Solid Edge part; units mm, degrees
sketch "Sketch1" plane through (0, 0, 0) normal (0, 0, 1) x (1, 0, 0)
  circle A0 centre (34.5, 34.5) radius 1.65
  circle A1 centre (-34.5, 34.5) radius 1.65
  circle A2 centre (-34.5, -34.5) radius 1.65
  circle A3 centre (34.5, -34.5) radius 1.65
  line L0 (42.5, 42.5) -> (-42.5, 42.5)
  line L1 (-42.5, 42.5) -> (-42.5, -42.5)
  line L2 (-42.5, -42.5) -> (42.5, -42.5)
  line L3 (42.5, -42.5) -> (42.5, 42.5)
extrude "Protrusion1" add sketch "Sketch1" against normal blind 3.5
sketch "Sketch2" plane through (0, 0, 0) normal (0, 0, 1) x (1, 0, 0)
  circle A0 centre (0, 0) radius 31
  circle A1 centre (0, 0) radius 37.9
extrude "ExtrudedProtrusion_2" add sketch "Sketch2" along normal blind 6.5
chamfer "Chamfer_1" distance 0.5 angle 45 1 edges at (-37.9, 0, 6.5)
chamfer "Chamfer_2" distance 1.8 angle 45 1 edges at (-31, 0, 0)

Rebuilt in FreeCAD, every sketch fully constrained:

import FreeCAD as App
import Part
import Sketcher
from FreeCAD import Vector
Q = App.Units.Quantity


def edges_at(feature, points):
    """Names of the edges that pass closest to the given points."""
    edges = feature.Shape.Edges
    near = lambda p: min(range(len(edges)), key=lambda i: edges[i].distToShape(Part.Vertex(*p))[0])
    return sorted({f"Edge{near(p) + 1}" for p in points})

doc = App.newDocument("Part")
body = doc.addObject("PartDesign::Body", "Body")

sketch1 = doc.addObject("Sketcher::SketchObject", "Sketch")
body.addObject(sketch1)
sketch1.AttachmentSupport = (doc.XY_Plane, [""])
sketch1.MapMode = "FlatFace"
sketch1.addGeometry([
    Part.LineSegment(Vector(42.5, -42.5, 0), Vector(42.5, 42.5, 0)),
    Part.LineSegment(Vector(42.5, 42.5, 0), Vector(-42.5, 42.5, 0)),
    Part.LineSegment(Vector(-42.5, 42.5, 0), Vector(-42.5, -42.5, 0)),
    Part.LineSegment(Vector(-42.5, -42.5, 0), Vector(42.5, -42.5, 0)),
    Part.Circle(Vector(-34.5, -34.5, 0), Vector(0, 0, 1), 1.6),
    Part.Circle(Vector(34.5, -34.5, 0), Vector(0, 0, 1), 1.6),
    Part.Circle(Vector(-34.5, 34.5, 0), Vector(0, 0, 1), 1.6),
    Part.Circle(Vector(34.5, 34.5, 0), Vector(0, 0, 1), 1.6),
], False)
sketch1.addConstraint([
    Sketcher.Constraint("Coincident", 0, 2, 1, 1),
    Sketcher.Constraint("Coincident", 1, 2, 2, 1),
    Sketcher.Constraint("Coincident", 2, 2, 3, 1),
    Sketcher.Constraint("Coincident", 3, 2, 0, 1),
    Sketcher.Constraint("Vertical", 0),
    Sketcher.Constraint("Horizontal", 1),
    Sketcher.Constraint("Vertical", 2),
    Sketcher.Constraint("Horizontal", 3),
    Sketcher.Constraint("Equal", 4, 5),
    Sketcher.Constraint("Equal", 5, 6),
    Sketcher.Constraint("Equal", 6, 7),
    Sketcher.Constraint("Symmetric", 5, 3, 6, 3, -1, 1),
    Sketcher.Constraint("Symmetric", 4, 3, 7, 3, -1, 1),
    Sketcher.Constraint("Symmetric", 0, 2, 2, 2, -1, 1),
    Sketcher.Constraint("Symmetric", 4, 3, 5, 3, -2),
    Sketcher.Constraint("Equal", 3, 0),
    Sketcher.Constraint("Diameter", 4, Q("3.3 mm")),
    Sketcher.Constraint("DistanceX", 1, 2, 1, 1, Q("85 mm")),
    Sketcher.Constraint("DistanceX", 4, 3, 5, 3, Q("69 mm")),
    Sketcher.Constraint("DistanceY", 4, 3, 6, 3, Q("69 mm")),
])
pad1 = doc.addObject("PartDesign::Pad", "Pad")
body.addObject(pad1)
pad1.Profile = sketch1
pad1.Length = 3.5
pad1.Reversed = True

sketch2 = doc.addObject("Sketcher::SketchObject", "Sketch001")
body.addObject(sketch2)
sketch2.AttachmentSupport = (doc.XY_Plane, [""])
sketch2.MapMode = "FlatFace"
sketch2.addGeometry([
    Part.Circle(Vector(0, 0, 0), Vector(0, 0, 1), 38),
    Part.Circle(Vector(0, 0, 0), Vector(0, 0, 1), 31),
], False)
sketch2.addConstraint([
    Sketcher.Constraint("Coincident", 0, 3, -1, 1),
    Sketcher.Constraint("Coincident", 1, 3, -1, 1),
    Sketcher.Constraint("Diameter", 1, Q("62 mm")),
    Sketcher.Constraint("Diameter", 0, Q("75.8 mm")),
])
pad2 = doc.addObject("PartDesign::Pad", "Pad001")
body.addObject(pad2)
pad2.Profile = sketch2
pad2.Length = 6.5
doc.recompute()

chamfer = doc.addObject("PartDesign::Chamfer", "Chamfer")
body.addObject(chamfer)
chamfer.Base = (pad2, edges_at(pad2, [(-37.9, 0, 6.5)]))
chamfer.Size = 0.5
doc.recompute()

chamfer2 = doc.addObject("PartDesign::Chamfer", "Chamfer001")
body.addObject(chamfer2)
chamfer2.Base = (chamfer, edges_at(chamfer, [(-31, 0, 0)]))
chamfer2.Size = 1.8

doc.recompute()
